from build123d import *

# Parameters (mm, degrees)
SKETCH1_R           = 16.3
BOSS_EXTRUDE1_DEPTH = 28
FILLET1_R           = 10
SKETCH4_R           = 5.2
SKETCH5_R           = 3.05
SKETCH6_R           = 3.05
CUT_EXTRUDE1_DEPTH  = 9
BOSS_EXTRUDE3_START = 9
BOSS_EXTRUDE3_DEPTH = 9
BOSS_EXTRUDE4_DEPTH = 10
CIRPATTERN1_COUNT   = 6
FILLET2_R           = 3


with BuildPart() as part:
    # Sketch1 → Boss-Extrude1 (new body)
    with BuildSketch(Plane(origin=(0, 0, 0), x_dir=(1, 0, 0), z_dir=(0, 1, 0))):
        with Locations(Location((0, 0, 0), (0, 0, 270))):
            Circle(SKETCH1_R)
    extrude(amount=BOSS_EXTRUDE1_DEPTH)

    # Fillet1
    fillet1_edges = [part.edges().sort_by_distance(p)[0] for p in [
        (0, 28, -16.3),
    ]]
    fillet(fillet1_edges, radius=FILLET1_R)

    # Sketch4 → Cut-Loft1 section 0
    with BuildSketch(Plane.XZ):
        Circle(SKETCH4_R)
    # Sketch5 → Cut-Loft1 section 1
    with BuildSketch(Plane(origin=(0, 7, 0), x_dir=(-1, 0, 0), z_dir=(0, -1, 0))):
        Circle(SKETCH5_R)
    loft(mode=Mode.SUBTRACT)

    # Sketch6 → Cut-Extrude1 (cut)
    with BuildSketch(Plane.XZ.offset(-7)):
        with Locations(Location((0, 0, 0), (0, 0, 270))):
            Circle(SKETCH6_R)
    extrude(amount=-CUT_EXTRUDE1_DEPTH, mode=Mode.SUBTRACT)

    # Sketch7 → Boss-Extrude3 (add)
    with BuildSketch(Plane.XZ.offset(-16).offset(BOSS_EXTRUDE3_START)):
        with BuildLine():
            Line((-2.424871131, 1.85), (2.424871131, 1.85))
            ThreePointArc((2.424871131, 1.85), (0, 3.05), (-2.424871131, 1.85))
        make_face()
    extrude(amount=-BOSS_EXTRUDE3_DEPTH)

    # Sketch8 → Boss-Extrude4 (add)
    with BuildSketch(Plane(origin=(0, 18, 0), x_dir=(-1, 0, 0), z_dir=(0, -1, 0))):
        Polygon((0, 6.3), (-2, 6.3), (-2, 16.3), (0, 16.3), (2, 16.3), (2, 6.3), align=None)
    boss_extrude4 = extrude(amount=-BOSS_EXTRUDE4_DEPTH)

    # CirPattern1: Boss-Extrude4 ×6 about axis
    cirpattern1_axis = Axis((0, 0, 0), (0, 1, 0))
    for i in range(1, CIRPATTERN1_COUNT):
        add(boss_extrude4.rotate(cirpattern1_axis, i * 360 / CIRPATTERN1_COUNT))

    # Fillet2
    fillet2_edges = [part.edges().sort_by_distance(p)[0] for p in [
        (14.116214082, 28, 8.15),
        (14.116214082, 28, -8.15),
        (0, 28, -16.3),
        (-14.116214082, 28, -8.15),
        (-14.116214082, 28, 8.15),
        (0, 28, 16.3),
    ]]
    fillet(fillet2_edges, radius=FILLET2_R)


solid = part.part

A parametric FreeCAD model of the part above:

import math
import FreeCAD as App
import Part
import Sketcher
Q = App.Units.Quantity


def edges_at(feature, points):
    """Names of the edges that pass closest to the given points."""
    edges = feature.Shape.Edges
    near = lambda p: min(range(len(edges)), key=lambda i: edges[i].distToShape(Part.Vertex(*p))[0])
    return sorted({f"Edge{near(p) + 1}" for p in points})


def add_polygon(sketch, points):
    """Adds a closed chain of lines whose ends are joined by coincident constraints."""
    first, n = sketch.GeometryCount, len(points)
    for a, b in zip(points, points[1:] + points[:1]):
        sketch.addGeometry(Part.LineSegment(App.Vector(*a, 0), App.Vector(*b, 0)), False)
    for i in range(n):
        sketch.addConstraint(Sketcher.Constraint("Coincident", first + i, 2, first + (i + 1) % n, 1))

doc = App.newDocument("Part")
body = doc.addObject("PartDesign::Body", "Body")

# Sketch on XZ plane
sketch1 = doc.addObject("Sketcher::SketchObject", "Sketch")
body.addObject(sketch1)
sketch1.AttachmentSupport = (doc.XZ_Plane, [""])
sketch1.MapMode = "FlatFace"
sketch1.addGeometry(Part.Circle(App.Vector(0, 0, 0), App.Vector(0, 0, 1), 16), False)
sketch1.addConstraint(Sketcher.Constraint("Coincident", 0, 3, -1, 1))
sketch1.addConstraint(Sketcher.Constraint("Diameter", 0, Q("32.6 mm")))
pad1 = doc.addObject("PartDesign::Pad", "Pad")
body.addObject(pad1)
pad1.Profile = sketch1
pad1.Length = 28
pad1.Reversed = True
doc.recompute()

fillet = doc.addObject("PartDesign::Fillet", "Fillet")
body.addObject(fillet)
fillet.Base = (pad1, edges_at(pad1, [(0, 28, -16.3)]))
fillet.Radius = 10

# Sketch on XZ plane
sketch2 = doc.addObject("Sketcher::SketchObject", "Sketch001")
body.addObject(sketch2)
sketch2.AttachmentSupport = (doc.XZ_Plane, [""])
sketch2.MapMode = "FlatFace"
sketch2.addGeometry(Part.Circle(App.Vector(0, 0, 0), App.Vector(0, 0, 1), 5), False)
sketch2.addConstraint(Sketcher.Constraint("Coincident", 0, 3, -1, 1))
sketch2.addConstraint(Sketcher.Constraint("Diameter", 0, Q("10.4 mm")))

# Sketch on XZ plane
sketch3 = doc.addObject("Sketcher::SketchObject", "Sketch002")
body.addObject(sketch3)
sketch3.AttachmentSupport = (doc.XZ_Plane, [""])
sketch3.MapMode = "FlatFace"
sketch3.AttachmentOffset = App.Placement(App.Vector(0, 0, -7), App.Rotation())
sketch3.addGeometry(Part.Circle(App.Vector(0, 0, 0), App.Vector(0, 0, 1), 3), False)
sketch3.addConstraint(Sketcher.Constraint("Coincident", 0, 3, -1, 1))
sketch3.addConstraint(Sketcher.Constraint("Diameter", 0, Q("6.1 mm")))

subtractiveloft = doc.addObject("PartDesign::SubtractiveLoft", "SubtractiveLoft")
body.addObject(subtractiveloft)
subtractiveloft.Profile = sketch2
subtractiveloft.Sections = [sketch3]

# Sketch on XZ plane
sketch4 = doc.addObject("Sketcher::SketchObject", "Sketch003")
body.addObject(sketch4)
sketch4.AttachmentSupport = (doc.XZ_Plane, [""])
sketch4.MapMode = "FlatFace"
sketch4.AttachmentOffset = App.Placement(App.Vector(0, 0, -7), App.Rotation())
sketch4.addGeometry(Part.Circle(App.Vector(0, 0, 0), App.Vector(0, 0, 1), 3), False)
sketch4.addConstraint(Sketcher.Constraint("Coincident", 0, 3, -1, 1))
sketch4.addConstraint(Sketcher.Constraint("Diameter", 0, Q("6.1 mm")))
pocket1 = doc.addObject("PartDesign::Pocket", "Pocket")
body.addObject(pocket1)
pocket1.Profile = sketch4
pocket1.Length = 9

# Sketch on XZ plane
sketch5 = doc.addObject("Sketcher::SketchObject", "Sketch004")
body.addObject(sketch5)
sketch5.AttachmentSupport = (doc.XZ_Plane, [""])
sketch5.MapMode = "FlatFace"
sketch5.AttachmentOffset = App.Placement(App.Vector(0, 0, -7), App.Rotation())
sketch5.addGeometry(Part.LineSegment(App.Vector(-2.4, 1.9, 0), App.Vector(2.4, 1.9, 0)), False)
sketch5.addGeometry(Part.ArcOfCircle(Part.Circle(App.Vector(0, 0, 0), App.Vector(0, 0, 1), 3.1), math.radians(37), math.radians(143)), False)
sketch5.addConstraint(Sketcher.Constraint("Coincident", 0, 1, 1, 2))
sketch5.addConstraint(Sketcher.Constraint("Coincident", 1, 1, 0, 2))
sketch5.addConstraint(Sketcher.Constraint("Horizontal", 0))
sketch5.addConstraint(Sketcher.Constraint("Coincident", 1, 3, -1, 1))
sketch5.addConstraint(Sketcher.Constraint("Radius", 1, Q("3.05 mm")))
sketch5.addConstraint(Sketcher.Constraint("DistanceY", -1, 1, 0, 1, Q("1.85 mm")))
pad2 = doc.addObject("PartDesign::Pad", "Pad001")
body.addObject(pad2)
pad2.Profile = sketch5
pad2.Length = 9
pad2.Reversed = True

# Sketch on XZ plane
sketch6 = doc.addObject("Sketcher::SketchObject", "Sketch005")
body.addObject(sketch6)
sketch6.AttachmentSupport = (doc.XZ_Plane, [""])
sketch6.MapMode = "FlatFace"
sketch6.AttachmentOffset = App.Placement(App.Vector(0, 0, -18), App.Rotation())
add_polygon(sketch6, [(2, -6.3), (-2, -6.3), (-2, -16.3), (2, -16.3)])  # lines 0-3
sketch6.addConstraint(Sketcher.Constraint("Horizontal", 0))
sketch6.addConstraint(Sketcher.Constraint("Vertical", 1))
sketch6.addConstraint(Sketcher.Constraint("Horizontal", 2))
sketch6.addConstraint(Sketcher.Constraint("Vertical", 3))
sketch6.addConstraint(Sketcher.Constraint("DistanceX", 0, 2, 0, 1, Q("4 mm")))
sketch6.addConstraint(Sketcher.Constraint("DistanceY", 1, 2, 1, 1, Q("10 mm")))
sketch6.addConstraint(Sketcher.Constraint("DistanceX", 0, 2, -1, 1, Q("2 mm")))
sketch6.addConstraint(Sketcher.Constraint("DistanceY", 0, 2, -1, 1, Q("6.3 mm")))
pad3 = doc.addObject("PartDesign::Pad", "Pad002")
body.addObject(pad3)
pad3.Profile = sketch6
pad3.Length = 10
pad3.Reversed = True
doc.recompute()

polarpattern = doc.addObject("PartDesign::PolarPattern", "PolarPattern")
body.addObject(polarpattern)
polarpattern.Originals = [pad3]
polarpattern.Axis = (doc.Y_Axis, [""])
polarpattern.Angle = 360
polarpattern.Occurrences = 6
body.Tip = polarpattern
doc.recompute()

fillet2 = doc.addObject("PartDesign::Fillet", "Fillet001")
body.addObject(fillet2)
fillet2.Base = (polarpattern, edges_at(polarpattern, [
    (14.116, 28, 8.15),
    (14.116, 28, -8.15),
    (0, 28, -16.3),
    (-14.116, 28, -8.15),
    (-14.116, 28, 8.15),
    (0, 28, 16.3),
]))
fillet2.Radius = 3

doc.recompute()
